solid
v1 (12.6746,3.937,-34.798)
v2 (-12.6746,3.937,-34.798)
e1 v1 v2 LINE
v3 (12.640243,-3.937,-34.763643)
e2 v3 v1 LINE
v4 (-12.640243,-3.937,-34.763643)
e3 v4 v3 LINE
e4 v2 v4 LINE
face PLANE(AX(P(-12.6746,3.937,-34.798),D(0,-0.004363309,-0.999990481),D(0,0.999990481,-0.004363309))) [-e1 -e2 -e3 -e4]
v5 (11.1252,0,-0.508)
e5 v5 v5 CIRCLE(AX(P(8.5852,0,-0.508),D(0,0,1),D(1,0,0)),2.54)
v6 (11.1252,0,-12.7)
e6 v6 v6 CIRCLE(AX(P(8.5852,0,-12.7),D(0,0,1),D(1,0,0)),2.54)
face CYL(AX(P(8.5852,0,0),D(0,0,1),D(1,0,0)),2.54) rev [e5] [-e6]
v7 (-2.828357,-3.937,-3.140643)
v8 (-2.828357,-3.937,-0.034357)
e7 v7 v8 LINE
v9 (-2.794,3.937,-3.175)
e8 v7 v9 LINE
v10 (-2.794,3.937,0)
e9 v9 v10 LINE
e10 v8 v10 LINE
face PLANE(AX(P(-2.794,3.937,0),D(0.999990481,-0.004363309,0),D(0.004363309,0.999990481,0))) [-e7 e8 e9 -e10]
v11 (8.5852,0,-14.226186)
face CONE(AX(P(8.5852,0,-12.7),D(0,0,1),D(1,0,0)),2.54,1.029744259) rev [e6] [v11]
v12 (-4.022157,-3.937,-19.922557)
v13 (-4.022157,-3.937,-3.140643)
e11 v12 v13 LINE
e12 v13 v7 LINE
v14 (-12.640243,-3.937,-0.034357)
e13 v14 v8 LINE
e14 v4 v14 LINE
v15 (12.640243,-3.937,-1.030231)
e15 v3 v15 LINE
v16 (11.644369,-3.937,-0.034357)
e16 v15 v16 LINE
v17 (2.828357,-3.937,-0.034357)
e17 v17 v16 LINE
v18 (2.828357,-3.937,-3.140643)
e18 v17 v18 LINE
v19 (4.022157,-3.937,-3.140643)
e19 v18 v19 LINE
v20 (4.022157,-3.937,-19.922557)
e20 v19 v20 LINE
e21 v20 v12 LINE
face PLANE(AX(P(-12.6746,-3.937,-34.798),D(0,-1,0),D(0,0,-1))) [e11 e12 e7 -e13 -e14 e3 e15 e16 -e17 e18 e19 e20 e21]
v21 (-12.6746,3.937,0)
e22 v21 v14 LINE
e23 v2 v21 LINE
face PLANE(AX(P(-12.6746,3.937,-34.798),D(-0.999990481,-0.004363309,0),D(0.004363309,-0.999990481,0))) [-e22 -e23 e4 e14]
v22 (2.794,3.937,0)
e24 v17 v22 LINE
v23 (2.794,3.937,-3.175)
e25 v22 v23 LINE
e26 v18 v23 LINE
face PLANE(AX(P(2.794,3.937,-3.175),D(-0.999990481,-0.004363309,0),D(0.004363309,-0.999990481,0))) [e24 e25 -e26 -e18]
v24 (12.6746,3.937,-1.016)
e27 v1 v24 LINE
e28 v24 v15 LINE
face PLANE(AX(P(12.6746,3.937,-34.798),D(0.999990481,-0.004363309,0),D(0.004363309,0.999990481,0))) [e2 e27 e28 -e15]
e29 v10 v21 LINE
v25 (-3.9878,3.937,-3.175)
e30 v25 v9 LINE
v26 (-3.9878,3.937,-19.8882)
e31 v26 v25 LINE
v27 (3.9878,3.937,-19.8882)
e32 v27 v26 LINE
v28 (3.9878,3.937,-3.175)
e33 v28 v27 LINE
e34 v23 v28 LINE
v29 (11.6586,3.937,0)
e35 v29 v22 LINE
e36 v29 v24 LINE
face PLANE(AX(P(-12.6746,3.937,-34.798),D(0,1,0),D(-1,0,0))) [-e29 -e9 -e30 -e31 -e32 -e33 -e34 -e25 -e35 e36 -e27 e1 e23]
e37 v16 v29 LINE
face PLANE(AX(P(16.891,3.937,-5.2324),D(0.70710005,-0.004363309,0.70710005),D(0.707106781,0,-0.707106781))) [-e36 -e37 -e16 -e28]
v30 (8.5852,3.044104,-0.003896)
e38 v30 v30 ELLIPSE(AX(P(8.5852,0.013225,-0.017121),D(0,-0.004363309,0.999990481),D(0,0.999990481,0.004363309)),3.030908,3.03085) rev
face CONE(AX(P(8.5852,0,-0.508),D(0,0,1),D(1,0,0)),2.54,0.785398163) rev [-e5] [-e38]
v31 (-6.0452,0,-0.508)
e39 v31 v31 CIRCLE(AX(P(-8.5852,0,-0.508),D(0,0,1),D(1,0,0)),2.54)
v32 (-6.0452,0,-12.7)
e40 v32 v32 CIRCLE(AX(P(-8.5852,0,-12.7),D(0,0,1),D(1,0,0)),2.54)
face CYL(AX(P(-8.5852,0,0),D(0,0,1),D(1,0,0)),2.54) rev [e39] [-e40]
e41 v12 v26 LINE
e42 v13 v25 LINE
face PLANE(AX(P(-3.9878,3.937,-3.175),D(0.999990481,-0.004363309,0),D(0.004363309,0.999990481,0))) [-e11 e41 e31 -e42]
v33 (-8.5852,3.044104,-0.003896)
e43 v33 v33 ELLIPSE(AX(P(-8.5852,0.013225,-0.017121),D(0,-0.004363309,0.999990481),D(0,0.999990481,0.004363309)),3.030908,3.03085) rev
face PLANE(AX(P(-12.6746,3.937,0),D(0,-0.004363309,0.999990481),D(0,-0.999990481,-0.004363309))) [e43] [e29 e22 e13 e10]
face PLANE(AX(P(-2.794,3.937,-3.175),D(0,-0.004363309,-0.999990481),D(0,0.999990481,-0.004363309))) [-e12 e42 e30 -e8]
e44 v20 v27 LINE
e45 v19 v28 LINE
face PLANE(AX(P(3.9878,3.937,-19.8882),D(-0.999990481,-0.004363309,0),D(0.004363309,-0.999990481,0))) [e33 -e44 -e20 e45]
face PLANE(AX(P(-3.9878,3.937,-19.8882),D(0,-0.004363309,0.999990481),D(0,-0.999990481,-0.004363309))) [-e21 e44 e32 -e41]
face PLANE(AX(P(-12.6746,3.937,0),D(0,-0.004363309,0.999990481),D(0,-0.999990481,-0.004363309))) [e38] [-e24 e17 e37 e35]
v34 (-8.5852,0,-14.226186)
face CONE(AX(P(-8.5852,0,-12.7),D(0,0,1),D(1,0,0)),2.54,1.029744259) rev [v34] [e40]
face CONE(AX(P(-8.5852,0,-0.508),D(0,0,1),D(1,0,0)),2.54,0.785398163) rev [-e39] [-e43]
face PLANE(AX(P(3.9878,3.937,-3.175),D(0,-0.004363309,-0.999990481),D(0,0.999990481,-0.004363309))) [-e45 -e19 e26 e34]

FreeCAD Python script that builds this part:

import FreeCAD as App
import Part
import Sketcher
Q = App.Units.Quantity


def edges_at(feature, points):
    """Names of the edges that pass closest to the given points."""
    edges = feature.Shape.Edges
    near = lambda p: min(range(len(edges)), key=lambda i: edges[i].distToShape(Part.Vertex(*p))[0])
    return sorted({f"Edge{near(p) + 1}" for p in points})


def faces_at(feature, points):
    """Names of the faces that lie closest to the given points."""
    faces = feature.Shape.Faces
    near = lambda p: min(range(len(faces)), key=lambda i: faces[i].distToShape(Part.Vertex(*p))[0])
    return sorted({f"Face{near(p) + 1}" for p in points})


def add_polygon(sketch, points):
    """Adds a closed chain of lines whose ends are joined by coincident constraints."""
    first, n = sketch.GeometryCount, len(points)
    for a, b in zip(points, points[1:] + points[:1]):
        sketch.addGeometry(Part.LineSegment(App.Vector(*a, 0), App.Vector(*b, 0)), False)
    for i in range(n):
        sketch.addConstraint(Sketcher.Constraint("Coincident", first + i, 2, first + (i + 1) % n, 1))

doc = App.newDocument("Part")
params = doc.addObject("Spreadsheet::Sheet", "Params")
for row, (alias, value) in enumerate([
    ("sketch1_height", "0.31 in"),
    ("sketch1_width", "0.998 in"),
    ("pad1_length", "1.37 in"),
    ("sketch2_width", "0.22 in"),
    ("sketch2_width2", "0.047 in"),
    ("sketch2_height", "0.125 in"),
    ("sketch2_height2", "0.658 in"),
    ("sketch3_diameter", "0.2 in"),
    ("hole_diameter", "0.2 in"),
    ("hole_depth", "0.5 in"),
    ("chamfer_size", "0.02 in"),
    ("chamfer2_size", "0.04 in"),
    ("draft_angle", "0.25 deg"),
], start=1):
    params.set(f"A{row}", alias)
    params.set(f"B{row}", "=" + value)
    params.setAlias(f"B{row}", alias)

body = doc.addObject("PartDesign::Body", "Body")

# Sketch on XY plane
sketch1 = body.newObject("Sketcher::SketchObject", "Sketch")
sketch1.AttachmentSupport = (doc.getObject("XY_Plane"), [""])
sketch1.MapMode = "FlatFace"
add_polygon(sketch1, [(-12.6746, 3.937), (-12.6746, -3.937), (12.6746, -3.937), (12.6746, 3.937)])  # lines 0-3
sketch1.addConstraint([
    Sketcher.Constraint("Vertical", 0),
    Sketcher.Constraint("Horizontal", 1),
    Sketcher.Constraint("Vertical", 2),
    Sketcher.Constraint("Horizontal", 3),
    Sketcher.Constraint("Symmetric", 0, 2, 2, 2, -1, 1),
    Sketcher.Constraint("DistanceY", 0, 2, 0, 1, Q("0.31 in")),
    Sketcher.Constraint("DistanceX", 1, 1, 1, 2, Q("0.998 in")),
])
sketch1.setExpression("Constraints[9]", "Params.sketch1_height")
sketch1.setExpression("Constraints[10]", "Params.sketch1_width")
pad1 = body.newObject("PartDesign::Pad", "Pad")
pad1.Profile = sketch1
pad1.setExpression("Length", "Params.pad1_length")
pad1.Reversed = True

# Sketch on XZ plane
sketch2 = body.newObject("Sketcher::SketchObject", "Sketch001")
sketch2.AttachmentSupport = (doc.getObject("XZ_Plane"), [""])
sketch2.MapMode = "FlatFace"
sketch2.AttachmentOffset = App.Placement(App.Vector(0, 0, -0.155 * 25.4), App.Rotation())
add_polygon(sketch2, [(-2.794, -3.175), (-2.794, 0), (2.794, 0), (2.794, -3.175), (3.9878, -3.175), (3.9878, -19.8882), (-3.9878, -19.8882), (-3.9878, -3.175)])  # lines 0-7
sketch2.addConstraint([
    Sketcher.Constraint("Vertical", 0),
    Sketcher.Constraint("Horizontal", 1),
    Sketcher.Constraint("Vertical", 2),
    Sketcher.Constraint("Horizontal", 3),
    Sketcher.Constraint("Vertical", 4),
    Sketcher.Constraint("Horizontal", 5),
    Sketcher.Constraint("Vertical", 6),
    Sketcher.Constraint("Horizontal", 7),
    Sketcher.Constraint("Symmetric", 0, 2, 1, 2, -1, 1),
    Sketcher.Constraint("Symmetric", 3, 2, 6, 2, -2),
    Sketcher.Constraint("DistanceX", 1, 1, 1, 2, Q("0.22 in")),
    Sketcher.Constraint("DistanceX", 3, 1, 3, 2, Q("0.047 in")),
    Sketcher.Constraint("DistanceY", 0, 1, 0, 2, Q("0.125 in")),
    Sketcher.Constraint("DistanceY", 4, 2, 4, 1, Q("0.658 in")),
])
sketch2.setExpression("Constraints[18]", "Params.sketch2_width")
sketch2.setExpression("Constraints[19]", "Params.sketch2_width2")
sketch2.setExpression("Constraints[20]", "Params.sketch2_height")
sketch2.setExpression("Constraints[21]", "Params.sketch2_height2")
pocket1 = body.newObject("PartDesign::Pocket", "Pocket")
pocket1.Profile = sketch2
pocket1.Type = "ThroughAll"
pocket1.Reversed = True

# Sketch on XY plane
sketch3 = body.newObject("Sketcher::SketchObject", "Sketch002")
sketch3.AttachmentSupport = (doc.getObject("XY_Plane"), [""])
sketch3.MapMode = "FlatFace"
sketch3.addGeometry([
    Part.Circle(App.Vector(-8.5852, 0, 0), App.Vector(0, 0, 1), 2.54),
    Part.Circle(App.Vector(8.5852, 0, 0), App.Vector(0, 0, 1), 2.54),
], False)
sketch3.addConstraint([
    Sketcher.Constraint("Equal", 0, 1),
    Sketcher.Constraint("Symmetric", 0, 3, 1, 3, -1, 1),
    Sketcher.Constraint("PointOnObject", 0, 3, -1),
    Sketcher.Constraint("Diameter", 0, Q("0.2 in")),
    Sketcher.Constraint("DistanceX", 0, 3, -1, 1, Q("0.338 in")),
])
sketch3.setExpression("Constraints[3]", "Params.sketch3_diameter")
doc.recompute()
hole = body.newObject("PartDesign::Hole", "Hole")
hole.Profile = sketch3
hole.ThreadType = "None"
hole.setExpression("Diameter", "Params.hole_diameter")
hole.DepthType = "Dimension"
hole.setExpression("Depth", "Params.hole_depth")
hole.DrillPoint = "Angled"
hole.DrillPointAngle = 118
doc.recompute()

chamfer = body.newObject("PartDesign::Chamfer", "Chamfer")
chamfer.Base = (hole, edges_at(hole, [(11.125, 0, 0), (-6.045, 0, 0)]))
chamfer.setExpression("Size", "Params.chamfer_size")
doc.recompute()

chamfer2 = body.newObject("PartDesign::Chamfer", "Chamfer001")
chamfer2.Base = (chamfer, edges_at(chamfer, [(12.675, 0, 0)]))
chamfer2.setExpression("Size", "Params.chamfer2_size")
doc.recompute()

datumplane = body.newObject("PartDesign::Plane", "DatumPlane")
datumplane.AttachmentSupport = (doc.getObject("XZ_Plane"), [""])
datumplane.MapMode = "FlatFace"
datumplane.AttachmentOffset = App.Placement(App.Vector(0, 0, -0.155 * 25.4), App.Rotation())
draft = body.newObject("PartDesign::Draft", "Draft")
draft.Base = (chamfer2, faces_at(chamfer2, [
    (12.167, 0, -0.508),
    (5.453, -1.575, 0),
    (-11.687, 0, 0),
    (0, 0, -34.798),
    (-12.675, 0, -17.399),
    (12.675, 0, -17.907),
    (-3.391, 0, -3.175),
    (3.391, 0, -3.175),
    (2.794, 0, -1.587),
    (3.988, 0, -11.532),
    (-2.794, 0, -1.587),
    (0, 0, -19.888),
    (-3.988, 0, -11.532),
]))
draft.NeutralPlane = (datumplane, [""])
draft.setExpression("Angle", "Params.draft_angle")
draft.Reversed = False

doc.recompute()
